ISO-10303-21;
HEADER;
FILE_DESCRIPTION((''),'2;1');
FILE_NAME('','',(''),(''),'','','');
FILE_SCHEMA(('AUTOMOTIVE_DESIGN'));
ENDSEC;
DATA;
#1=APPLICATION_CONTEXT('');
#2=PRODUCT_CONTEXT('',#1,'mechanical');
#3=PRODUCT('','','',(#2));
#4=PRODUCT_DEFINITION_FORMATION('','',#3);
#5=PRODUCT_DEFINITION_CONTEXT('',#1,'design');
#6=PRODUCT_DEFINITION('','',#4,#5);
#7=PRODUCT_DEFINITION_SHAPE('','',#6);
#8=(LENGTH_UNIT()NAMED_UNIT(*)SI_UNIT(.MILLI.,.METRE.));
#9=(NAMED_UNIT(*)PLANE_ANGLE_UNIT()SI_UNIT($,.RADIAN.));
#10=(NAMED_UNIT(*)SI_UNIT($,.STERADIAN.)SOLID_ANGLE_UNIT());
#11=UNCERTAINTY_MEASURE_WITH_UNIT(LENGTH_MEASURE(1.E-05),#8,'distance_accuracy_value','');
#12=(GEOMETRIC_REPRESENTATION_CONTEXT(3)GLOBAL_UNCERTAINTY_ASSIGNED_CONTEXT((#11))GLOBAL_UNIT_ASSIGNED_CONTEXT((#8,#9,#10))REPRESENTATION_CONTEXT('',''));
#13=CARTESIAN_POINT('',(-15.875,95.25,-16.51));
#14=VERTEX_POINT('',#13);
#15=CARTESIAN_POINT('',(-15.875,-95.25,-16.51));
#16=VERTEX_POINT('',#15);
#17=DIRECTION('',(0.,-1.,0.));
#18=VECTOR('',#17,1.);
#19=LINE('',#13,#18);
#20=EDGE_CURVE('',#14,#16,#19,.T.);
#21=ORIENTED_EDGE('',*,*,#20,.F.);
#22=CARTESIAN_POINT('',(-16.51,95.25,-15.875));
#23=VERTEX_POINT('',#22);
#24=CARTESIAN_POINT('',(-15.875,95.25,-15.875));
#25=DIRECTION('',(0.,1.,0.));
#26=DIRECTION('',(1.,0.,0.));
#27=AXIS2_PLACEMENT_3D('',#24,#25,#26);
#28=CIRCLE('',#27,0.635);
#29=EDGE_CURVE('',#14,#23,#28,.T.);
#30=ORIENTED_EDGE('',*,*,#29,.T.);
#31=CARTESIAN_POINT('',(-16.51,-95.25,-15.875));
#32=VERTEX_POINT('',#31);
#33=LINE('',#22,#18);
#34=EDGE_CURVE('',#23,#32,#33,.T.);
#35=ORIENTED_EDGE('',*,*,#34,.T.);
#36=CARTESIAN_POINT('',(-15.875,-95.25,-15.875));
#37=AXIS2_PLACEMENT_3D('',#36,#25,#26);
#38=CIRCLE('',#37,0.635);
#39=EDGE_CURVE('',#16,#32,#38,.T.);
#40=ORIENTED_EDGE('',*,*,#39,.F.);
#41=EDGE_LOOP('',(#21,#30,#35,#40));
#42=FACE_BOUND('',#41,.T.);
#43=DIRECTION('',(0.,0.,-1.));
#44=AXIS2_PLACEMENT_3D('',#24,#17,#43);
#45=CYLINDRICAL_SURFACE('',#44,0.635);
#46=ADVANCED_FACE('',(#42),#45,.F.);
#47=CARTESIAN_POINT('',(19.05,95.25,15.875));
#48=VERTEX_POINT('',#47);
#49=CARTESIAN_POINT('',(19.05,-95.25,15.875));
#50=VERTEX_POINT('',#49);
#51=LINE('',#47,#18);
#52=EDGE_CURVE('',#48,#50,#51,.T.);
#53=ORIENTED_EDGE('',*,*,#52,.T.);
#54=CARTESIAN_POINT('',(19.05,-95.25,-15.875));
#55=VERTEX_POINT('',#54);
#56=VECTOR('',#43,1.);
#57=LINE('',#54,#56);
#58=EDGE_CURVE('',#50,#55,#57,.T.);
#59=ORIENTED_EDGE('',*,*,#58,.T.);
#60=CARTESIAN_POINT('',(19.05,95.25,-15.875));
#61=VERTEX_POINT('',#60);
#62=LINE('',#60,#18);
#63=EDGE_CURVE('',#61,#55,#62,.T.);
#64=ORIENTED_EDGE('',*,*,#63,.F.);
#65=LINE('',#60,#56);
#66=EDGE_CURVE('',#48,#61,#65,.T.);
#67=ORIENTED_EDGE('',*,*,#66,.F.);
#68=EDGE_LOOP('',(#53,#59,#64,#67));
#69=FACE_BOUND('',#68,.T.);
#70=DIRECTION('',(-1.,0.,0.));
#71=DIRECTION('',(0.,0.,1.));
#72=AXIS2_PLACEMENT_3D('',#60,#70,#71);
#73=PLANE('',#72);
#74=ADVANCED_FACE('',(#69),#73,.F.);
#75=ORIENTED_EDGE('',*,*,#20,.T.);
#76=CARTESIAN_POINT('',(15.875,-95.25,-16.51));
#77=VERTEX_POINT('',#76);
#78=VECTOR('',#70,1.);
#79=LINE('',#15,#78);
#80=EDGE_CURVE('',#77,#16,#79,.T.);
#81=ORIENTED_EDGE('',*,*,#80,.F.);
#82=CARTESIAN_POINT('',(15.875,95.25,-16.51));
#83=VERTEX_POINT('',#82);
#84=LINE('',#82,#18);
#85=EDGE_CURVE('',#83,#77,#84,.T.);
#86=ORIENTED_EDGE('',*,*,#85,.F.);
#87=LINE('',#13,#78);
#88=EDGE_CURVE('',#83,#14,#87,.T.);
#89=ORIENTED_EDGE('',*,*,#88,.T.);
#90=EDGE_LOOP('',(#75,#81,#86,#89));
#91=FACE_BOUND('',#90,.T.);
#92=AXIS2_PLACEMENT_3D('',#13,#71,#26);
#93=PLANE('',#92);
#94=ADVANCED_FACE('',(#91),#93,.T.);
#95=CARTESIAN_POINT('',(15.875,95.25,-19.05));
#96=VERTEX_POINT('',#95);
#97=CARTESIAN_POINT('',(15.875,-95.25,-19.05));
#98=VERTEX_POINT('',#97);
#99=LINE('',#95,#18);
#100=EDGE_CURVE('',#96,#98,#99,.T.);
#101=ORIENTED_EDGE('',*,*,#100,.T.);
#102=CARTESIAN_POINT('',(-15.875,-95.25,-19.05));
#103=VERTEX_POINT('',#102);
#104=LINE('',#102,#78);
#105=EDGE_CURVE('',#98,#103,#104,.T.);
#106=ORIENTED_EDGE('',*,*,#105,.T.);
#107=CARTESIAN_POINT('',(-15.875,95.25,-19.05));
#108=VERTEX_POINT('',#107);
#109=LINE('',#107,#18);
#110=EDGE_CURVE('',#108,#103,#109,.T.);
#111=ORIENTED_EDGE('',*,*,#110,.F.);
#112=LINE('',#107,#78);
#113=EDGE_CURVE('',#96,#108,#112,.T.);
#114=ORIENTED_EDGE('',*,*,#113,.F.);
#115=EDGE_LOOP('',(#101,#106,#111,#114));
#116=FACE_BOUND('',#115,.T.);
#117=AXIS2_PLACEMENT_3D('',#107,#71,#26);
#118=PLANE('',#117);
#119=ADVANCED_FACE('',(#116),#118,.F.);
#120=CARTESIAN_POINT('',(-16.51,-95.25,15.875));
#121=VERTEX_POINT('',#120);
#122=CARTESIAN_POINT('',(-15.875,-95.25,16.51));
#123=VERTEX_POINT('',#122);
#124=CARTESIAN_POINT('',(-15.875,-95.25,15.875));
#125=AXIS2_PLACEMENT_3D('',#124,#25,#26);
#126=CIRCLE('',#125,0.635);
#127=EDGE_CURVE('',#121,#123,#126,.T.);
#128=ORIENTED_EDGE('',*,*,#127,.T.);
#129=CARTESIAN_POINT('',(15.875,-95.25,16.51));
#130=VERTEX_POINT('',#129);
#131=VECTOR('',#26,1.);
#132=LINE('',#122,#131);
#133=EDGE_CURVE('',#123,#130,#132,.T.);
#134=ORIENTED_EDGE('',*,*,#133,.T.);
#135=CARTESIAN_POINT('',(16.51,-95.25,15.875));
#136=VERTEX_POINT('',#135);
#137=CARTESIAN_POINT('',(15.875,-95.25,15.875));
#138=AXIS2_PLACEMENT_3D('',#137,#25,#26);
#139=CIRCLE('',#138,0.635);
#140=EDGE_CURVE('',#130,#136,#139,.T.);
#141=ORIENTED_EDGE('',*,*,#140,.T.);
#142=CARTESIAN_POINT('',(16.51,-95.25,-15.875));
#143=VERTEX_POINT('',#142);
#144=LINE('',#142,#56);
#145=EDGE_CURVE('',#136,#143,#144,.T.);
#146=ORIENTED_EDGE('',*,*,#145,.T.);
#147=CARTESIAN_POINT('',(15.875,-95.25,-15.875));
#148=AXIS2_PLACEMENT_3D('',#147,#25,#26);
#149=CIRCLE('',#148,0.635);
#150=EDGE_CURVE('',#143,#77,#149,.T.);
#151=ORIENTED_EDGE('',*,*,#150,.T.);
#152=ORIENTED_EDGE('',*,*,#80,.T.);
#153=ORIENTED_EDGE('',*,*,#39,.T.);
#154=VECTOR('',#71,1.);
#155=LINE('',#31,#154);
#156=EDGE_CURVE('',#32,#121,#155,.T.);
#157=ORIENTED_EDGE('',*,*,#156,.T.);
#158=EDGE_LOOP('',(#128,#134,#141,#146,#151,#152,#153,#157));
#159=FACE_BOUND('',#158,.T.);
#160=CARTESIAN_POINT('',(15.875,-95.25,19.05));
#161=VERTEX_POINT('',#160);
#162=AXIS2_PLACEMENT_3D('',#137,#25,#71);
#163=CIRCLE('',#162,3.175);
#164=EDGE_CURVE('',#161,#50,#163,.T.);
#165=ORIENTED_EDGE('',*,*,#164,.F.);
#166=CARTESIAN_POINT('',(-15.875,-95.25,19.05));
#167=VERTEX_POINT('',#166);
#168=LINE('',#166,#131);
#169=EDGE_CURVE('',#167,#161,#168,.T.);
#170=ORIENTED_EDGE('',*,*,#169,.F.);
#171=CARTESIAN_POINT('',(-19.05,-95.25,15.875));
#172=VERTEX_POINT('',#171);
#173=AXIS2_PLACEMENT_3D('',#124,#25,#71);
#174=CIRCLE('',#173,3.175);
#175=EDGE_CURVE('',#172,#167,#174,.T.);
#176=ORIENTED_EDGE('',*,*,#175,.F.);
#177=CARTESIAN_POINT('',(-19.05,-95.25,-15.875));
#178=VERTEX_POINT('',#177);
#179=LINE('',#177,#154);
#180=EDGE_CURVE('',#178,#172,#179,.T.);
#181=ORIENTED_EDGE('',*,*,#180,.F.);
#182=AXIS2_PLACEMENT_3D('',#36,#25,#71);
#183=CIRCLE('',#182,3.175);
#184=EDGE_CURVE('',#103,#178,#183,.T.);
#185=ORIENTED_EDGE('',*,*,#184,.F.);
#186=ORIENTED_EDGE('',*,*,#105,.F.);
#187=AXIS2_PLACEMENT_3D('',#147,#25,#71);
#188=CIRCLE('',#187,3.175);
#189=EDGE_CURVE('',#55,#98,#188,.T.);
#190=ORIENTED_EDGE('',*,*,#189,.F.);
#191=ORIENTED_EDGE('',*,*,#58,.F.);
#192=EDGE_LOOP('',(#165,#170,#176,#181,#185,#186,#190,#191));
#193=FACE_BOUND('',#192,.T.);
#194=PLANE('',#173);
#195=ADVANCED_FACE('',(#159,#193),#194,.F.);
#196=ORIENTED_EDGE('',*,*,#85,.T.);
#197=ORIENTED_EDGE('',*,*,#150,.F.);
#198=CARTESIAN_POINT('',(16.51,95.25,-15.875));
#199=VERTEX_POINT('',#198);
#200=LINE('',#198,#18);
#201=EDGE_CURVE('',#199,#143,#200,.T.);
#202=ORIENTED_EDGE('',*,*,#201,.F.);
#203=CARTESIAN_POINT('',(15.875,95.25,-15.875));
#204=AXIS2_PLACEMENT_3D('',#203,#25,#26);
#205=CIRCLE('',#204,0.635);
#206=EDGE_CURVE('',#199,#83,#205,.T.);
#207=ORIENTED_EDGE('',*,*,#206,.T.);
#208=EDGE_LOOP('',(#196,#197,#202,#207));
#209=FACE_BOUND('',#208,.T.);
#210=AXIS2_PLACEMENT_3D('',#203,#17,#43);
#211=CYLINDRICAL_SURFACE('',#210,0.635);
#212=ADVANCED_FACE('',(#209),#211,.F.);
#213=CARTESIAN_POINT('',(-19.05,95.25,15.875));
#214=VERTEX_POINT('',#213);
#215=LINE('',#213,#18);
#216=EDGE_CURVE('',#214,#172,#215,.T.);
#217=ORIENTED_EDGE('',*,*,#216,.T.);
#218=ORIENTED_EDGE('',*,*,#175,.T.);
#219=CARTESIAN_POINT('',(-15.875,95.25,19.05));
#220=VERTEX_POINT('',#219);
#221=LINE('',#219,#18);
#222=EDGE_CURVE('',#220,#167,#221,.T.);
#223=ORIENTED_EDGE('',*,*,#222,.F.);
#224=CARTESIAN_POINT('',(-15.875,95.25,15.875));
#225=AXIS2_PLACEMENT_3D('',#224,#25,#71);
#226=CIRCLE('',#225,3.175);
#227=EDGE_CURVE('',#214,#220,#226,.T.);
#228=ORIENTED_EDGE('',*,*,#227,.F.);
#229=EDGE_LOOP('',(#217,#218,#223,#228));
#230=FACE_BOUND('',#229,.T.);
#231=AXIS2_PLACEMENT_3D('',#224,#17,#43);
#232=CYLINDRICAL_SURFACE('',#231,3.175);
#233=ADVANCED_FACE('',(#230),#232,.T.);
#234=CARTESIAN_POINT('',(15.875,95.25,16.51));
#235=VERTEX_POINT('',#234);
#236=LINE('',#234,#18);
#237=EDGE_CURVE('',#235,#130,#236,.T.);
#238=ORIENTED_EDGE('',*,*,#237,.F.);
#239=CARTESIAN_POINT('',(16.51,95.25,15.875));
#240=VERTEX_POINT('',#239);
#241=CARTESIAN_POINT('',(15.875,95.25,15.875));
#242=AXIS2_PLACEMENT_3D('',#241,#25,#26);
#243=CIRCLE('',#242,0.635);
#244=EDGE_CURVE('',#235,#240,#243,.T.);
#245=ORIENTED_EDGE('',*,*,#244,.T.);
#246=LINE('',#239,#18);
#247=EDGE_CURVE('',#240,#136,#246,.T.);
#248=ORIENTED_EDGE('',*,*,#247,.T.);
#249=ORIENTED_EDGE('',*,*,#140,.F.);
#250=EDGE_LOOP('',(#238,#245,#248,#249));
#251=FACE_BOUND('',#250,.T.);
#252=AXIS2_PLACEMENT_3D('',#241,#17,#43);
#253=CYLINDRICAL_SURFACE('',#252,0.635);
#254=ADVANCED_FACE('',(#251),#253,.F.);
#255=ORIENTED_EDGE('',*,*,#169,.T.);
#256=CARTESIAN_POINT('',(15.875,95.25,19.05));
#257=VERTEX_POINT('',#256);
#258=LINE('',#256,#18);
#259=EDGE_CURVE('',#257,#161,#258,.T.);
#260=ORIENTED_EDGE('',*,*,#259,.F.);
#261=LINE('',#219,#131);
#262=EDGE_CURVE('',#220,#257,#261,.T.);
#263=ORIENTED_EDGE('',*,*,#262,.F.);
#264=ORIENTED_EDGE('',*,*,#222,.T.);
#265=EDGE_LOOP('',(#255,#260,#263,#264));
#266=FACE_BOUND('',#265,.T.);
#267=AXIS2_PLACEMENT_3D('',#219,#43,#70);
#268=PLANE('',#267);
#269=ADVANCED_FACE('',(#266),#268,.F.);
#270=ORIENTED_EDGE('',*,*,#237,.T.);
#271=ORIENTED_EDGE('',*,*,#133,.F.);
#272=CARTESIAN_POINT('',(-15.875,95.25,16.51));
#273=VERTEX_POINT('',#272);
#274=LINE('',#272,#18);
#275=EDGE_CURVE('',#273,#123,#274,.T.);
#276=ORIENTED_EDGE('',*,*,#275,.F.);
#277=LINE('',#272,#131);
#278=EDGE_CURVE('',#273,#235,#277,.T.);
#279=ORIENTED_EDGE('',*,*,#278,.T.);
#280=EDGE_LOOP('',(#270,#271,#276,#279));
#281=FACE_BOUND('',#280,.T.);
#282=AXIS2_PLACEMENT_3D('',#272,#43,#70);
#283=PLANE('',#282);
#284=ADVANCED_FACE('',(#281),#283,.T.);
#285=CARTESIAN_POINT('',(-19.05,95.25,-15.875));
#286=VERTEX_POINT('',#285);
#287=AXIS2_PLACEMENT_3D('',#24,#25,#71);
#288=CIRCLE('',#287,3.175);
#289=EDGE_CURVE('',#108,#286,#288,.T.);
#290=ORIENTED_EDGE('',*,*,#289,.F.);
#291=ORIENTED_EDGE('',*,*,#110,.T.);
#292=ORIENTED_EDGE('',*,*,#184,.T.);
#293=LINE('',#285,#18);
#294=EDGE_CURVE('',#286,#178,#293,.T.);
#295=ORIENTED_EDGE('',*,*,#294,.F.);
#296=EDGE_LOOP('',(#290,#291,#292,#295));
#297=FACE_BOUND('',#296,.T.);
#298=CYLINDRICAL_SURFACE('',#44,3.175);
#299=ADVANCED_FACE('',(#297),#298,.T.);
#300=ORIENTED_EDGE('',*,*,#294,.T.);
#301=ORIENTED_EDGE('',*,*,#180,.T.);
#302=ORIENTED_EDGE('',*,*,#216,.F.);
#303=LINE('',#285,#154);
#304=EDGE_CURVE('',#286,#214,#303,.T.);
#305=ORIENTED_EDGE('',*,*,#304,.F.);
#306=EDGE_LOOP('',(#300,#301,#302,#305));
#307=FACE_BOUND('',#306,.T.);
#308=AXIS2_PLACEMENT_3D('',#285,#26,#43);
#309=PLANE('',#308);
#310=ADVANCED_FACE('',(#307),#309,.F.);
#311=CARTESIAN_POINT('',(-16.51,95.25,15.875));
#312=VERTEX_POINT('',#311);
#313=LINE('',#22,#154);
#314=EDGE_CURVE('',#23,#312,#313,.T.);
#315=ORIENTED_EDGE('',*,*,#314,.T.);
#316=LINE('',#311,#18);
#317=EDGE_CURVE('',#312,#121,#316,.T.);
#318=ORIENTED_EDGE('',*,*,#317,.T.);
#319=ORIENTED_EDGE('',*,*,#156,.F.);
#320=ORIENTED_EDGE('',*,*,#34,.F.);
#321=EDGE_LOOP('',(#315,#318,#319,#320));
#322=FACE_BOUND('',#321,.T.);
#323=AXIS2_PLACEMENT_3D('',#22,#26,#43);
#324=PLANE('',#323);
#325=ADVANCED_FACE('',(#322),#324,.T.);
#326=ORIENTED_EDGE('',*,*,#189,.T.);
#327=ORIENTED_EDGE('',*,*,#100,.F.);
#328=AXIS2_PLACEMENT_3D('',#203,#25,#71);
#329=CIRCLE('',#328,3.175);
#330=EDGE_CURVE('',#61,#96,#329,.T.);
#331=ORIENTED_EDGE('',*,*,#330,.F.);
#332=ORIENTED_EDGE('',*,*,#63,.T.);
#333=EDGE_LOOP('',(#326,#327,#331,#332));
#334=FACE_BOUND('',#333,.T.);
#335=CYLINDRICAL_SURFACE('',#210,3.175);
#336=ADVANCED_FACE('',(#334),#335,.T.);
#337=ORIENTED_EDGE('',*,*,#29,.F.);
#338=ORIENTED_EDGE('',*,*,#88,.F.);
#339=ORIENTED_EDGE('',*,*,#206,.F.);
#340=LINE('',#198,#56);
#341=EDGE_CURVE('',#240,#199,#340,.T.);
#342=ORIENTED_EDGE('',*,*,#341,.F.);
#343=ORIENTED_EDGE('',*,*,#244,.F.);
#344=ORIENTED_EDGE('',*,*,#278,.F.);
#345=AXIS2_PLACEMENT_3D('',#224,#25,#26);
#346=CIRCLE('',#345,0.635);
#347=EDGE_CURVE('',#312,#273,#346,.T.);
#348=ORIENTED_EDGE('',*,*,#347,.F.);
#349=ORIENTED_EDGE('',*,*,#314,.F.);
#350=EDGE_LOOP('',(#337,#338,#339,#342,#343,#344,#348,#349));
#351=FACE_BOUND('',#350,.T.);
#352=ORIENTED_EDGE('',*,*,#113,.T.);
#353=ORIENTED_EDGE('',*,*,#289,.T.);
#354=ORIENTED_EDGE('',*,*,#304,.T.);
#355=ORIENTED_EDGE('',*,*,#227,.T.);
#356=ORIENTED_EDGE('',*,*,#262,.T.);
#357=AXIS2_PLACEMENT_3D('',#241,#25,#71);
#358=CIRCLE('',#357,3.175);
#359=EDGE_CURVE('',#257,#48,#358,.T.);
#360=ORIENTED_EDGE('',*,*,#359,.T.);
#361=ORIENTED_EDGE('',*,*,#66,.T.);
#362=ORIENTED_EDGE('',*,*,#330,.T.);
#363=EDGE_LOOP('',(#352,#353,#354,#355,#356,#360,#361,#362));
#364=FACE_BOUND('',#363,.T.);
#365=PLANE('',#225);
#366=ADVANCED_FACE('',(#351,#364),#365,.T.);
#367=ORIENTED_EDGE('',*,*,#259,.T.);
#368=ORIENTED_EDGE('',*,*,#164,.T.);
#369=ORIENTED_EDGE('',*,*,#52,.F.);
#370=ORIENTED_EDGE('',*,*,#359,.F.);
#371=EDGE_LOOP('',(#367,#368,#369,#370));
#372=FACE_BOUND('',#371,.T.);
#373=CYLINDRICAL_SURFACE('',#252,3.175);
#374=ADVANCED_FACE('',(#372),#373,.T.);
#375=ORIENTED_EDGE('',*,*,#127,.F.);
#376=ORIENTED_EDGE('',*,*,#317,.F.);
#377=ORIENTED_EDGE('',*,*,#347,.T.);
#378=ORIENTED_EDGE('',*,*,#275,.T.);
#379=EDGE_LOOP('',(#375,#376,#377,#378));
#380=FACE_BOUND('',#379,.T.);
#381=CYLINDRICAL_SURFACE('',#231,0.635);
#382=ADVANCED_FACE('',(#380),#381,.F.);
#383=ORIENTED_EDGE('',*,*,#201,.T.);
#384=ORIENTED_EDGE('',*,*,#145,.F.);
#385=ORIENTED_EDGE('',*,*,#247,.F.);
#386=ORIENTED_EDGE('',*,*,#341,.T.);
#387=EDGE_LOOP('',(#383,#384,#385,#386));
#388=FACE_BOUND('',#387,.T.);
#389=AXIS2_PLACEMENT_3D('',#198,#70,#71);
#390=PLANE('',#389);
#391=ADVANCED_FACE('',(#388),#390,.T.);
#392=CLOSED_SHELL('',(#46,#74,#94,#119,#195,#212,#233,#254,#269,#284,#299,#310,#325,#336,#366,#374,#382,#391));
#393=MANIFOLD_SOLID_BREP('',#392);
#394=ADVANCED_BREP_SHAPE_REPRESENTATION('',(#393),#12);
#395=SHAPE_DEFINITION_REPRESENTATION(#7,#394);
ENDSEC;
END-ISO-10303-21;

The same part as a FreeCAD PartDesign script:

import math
import FreeCAD as App
import Part
import Sketcher

V = App.Vector
Q = App.Units.Quantity

doc = App.newDocument("Part")
body = doc.addObject("PartDesign::Body", "Body")

# Sketch on XZ plane
sketch1 = body.newObject("Sketcher::SketchObject", "Sketch")
sketch1.AttachmentSupport = (doc.getObject("XZ_Plane"), [""])
sketch1.MapMode = "FlatFace"
sketch1.addGeometry([
    Part.LineSegment(V(15.875, -19.05, 0), V(-15.875, -19.05, 0)),  # 0
    Part.ArcOfCircle(Part.Circle(V(-15.875, -15.875, 0), V(0, 0, 1), 3.175), math.radians(-180), math.radians(-90)),  # 1
    Part.LineSegment(V(-19.05, -15.875, 0), V(-19.05, 15.875, 0)),  # 2
    Part.ArcOfCircle(Part.Circle(V(-15.875, 15.875, 0), V(0, 0, 1), 3.175), math.radians(90), math.radians(180)),  # 3
    Part.LineSegment(V(-15.875, 19.05, 0), V(15.875, 19.05, 0)),  # 4
    Part.ArcOfCircle(Part.Circle(V(15.875, 15.875, 0), V(0, 0, 1), 3.175), math.radians(0), math.radians(90)),  # 5
    Part.LineSegment(V(19.05, 15.875, 0), V(19.05, -15.875, 0)),  # 6
    Part.ArcOfCircle(Part.Circle(V(15.875, -15.875, 0), V(0, 0, 1), 3.175), math.radians(-90), math.radians(0)),  # 7
    Part.LineSegment(V(-15.875, -16.51, 0), V(15.875, -16.51, 0)),  # 8
    Part.ArcOfCircle(Part.Circle(V(15.875, -15.875, 0), V(0, 0, 1), 0.635), math.radians(-90), math.radians(0)),  # 9
    Part.LineSegment(V(16.51, -15.875, 0), V(16.51, 15.875, 0)),  # 10
    Part.ArcOfCircle(Part.Circle(V(15.875, 15.875, 0), V(0, 0, 1), 0.635), math.radians(0), math.radians(90)),  # 11
    Part.LineSegment(V(15.875, 16.51, 0), V(-15.875, 16.51, 0)),  # 12
    Part.ArcOfCircle(Part.Circle(V(-15.875, 15.875, 0), V(0, 0, 1), 0.635), math.radians(90), math.radians(180)),  # 13
    Part.LineSegment(V(-16.51, 15.875, 0), V(-16.51, -15.875, 0)),  # 14
    Part.ArcOfCircle(Part.Circle(V(-15.875, -15.875, 0), V(0, 0, 1), 0.635), math.radians(180), math.radians(270)),  # 15
], False)
sketch1.addConstraint([
    Sketcher.Constraint("Tangent", 0, 2, 1, 2),
    Sketcher.Constraint("Tangent", 1, 1, 2, 1),
    Sketcher.Constraint("Tangent", 2, 2, 3, 2),
    Sketcher.Constraint("Tangent", 3, 1, 4, 1),
    Sketcher.Constraint("Tangent", 4, 2, 5, 2),
    Sketcher.Constraint("Tangent", 5, 1, 6, 1),
    Sketcher.Constraint("Tangent", 6, 2, 7, 2),
    Sketcher.Constraint("Tangent", 7, 1, 0, 1),
    Sketcher.Constraint("Tangent", 8, 2, 9, 1),
    Sketcher.Constraint("Tangent", 9, 2, 10, 1),
    Sketcher.Constraint("Tangent", 10, 2, 11, 1),
    Sketcher.Constraint("Tangent", 11, 2, 12, 1),
    Sketcher.Constraint("Tangent", 12, 2, 13, 1),
    Sketcher.Constraint("Tangent", 13, 2, 14, 1),
    Sketcher.Constraint("Tangent", 14, 2, 15, 1),
    Sketcher.Constraint("Tangent", 15, 2, 8, 1),
    Sketcher.Constraint("Horizontal", 0),
    Sketcher.Constraint("Vertical", 2),
    Sketcher.Constraint("Horizontal", 4),
    Sketcher.Constraint("Vertical", 6),
    Sketcher.Constraint("Horizontal", 8),
    Sketcher.Constraint("Vertical", 10),
    Sketcher.Constraint("Horizontal", 12),
    Sketcher.Constraint("Vertical", 14),
    Sketcher.Constraint("Coincident", 9, 3, 7, 3),
    Sketcher.Constraint("Coincident", 11, 3, 5, 3),
    Sketcher.Constraint("Coincident", 13, 3, 3, 3),
    Sketcher.Constraint("Equal", 1, 3),
    Sketcher.Constraint("Equal", 3, 5),
    Sketcher.Constraint("Equal", 5, 7),
    Sketcher.Constraint("Equal", 13, 15),
    Sketcher.Constraint("Symmetric", 1, 3, 5, 3, -1, 1),
    Sketcher.Constraint("Equal", 12, 2),
    Sketcher.Constraint("Radius", 1, Q("0.125 in")),
    Sketcher.Constraint("Radius", 9, Q("0.025 in")),
    Sketcher.Constraint("DistanceX", 0, 2, 0, 1, Q("1.25 in")),
])
pad1 = body.newObject("PartDesign::Pad", "Pad")
pad1.Profile = sketch1
pad1.Length = Q("7.5 in")
pad1.Midplane = True

doc.recompute()
